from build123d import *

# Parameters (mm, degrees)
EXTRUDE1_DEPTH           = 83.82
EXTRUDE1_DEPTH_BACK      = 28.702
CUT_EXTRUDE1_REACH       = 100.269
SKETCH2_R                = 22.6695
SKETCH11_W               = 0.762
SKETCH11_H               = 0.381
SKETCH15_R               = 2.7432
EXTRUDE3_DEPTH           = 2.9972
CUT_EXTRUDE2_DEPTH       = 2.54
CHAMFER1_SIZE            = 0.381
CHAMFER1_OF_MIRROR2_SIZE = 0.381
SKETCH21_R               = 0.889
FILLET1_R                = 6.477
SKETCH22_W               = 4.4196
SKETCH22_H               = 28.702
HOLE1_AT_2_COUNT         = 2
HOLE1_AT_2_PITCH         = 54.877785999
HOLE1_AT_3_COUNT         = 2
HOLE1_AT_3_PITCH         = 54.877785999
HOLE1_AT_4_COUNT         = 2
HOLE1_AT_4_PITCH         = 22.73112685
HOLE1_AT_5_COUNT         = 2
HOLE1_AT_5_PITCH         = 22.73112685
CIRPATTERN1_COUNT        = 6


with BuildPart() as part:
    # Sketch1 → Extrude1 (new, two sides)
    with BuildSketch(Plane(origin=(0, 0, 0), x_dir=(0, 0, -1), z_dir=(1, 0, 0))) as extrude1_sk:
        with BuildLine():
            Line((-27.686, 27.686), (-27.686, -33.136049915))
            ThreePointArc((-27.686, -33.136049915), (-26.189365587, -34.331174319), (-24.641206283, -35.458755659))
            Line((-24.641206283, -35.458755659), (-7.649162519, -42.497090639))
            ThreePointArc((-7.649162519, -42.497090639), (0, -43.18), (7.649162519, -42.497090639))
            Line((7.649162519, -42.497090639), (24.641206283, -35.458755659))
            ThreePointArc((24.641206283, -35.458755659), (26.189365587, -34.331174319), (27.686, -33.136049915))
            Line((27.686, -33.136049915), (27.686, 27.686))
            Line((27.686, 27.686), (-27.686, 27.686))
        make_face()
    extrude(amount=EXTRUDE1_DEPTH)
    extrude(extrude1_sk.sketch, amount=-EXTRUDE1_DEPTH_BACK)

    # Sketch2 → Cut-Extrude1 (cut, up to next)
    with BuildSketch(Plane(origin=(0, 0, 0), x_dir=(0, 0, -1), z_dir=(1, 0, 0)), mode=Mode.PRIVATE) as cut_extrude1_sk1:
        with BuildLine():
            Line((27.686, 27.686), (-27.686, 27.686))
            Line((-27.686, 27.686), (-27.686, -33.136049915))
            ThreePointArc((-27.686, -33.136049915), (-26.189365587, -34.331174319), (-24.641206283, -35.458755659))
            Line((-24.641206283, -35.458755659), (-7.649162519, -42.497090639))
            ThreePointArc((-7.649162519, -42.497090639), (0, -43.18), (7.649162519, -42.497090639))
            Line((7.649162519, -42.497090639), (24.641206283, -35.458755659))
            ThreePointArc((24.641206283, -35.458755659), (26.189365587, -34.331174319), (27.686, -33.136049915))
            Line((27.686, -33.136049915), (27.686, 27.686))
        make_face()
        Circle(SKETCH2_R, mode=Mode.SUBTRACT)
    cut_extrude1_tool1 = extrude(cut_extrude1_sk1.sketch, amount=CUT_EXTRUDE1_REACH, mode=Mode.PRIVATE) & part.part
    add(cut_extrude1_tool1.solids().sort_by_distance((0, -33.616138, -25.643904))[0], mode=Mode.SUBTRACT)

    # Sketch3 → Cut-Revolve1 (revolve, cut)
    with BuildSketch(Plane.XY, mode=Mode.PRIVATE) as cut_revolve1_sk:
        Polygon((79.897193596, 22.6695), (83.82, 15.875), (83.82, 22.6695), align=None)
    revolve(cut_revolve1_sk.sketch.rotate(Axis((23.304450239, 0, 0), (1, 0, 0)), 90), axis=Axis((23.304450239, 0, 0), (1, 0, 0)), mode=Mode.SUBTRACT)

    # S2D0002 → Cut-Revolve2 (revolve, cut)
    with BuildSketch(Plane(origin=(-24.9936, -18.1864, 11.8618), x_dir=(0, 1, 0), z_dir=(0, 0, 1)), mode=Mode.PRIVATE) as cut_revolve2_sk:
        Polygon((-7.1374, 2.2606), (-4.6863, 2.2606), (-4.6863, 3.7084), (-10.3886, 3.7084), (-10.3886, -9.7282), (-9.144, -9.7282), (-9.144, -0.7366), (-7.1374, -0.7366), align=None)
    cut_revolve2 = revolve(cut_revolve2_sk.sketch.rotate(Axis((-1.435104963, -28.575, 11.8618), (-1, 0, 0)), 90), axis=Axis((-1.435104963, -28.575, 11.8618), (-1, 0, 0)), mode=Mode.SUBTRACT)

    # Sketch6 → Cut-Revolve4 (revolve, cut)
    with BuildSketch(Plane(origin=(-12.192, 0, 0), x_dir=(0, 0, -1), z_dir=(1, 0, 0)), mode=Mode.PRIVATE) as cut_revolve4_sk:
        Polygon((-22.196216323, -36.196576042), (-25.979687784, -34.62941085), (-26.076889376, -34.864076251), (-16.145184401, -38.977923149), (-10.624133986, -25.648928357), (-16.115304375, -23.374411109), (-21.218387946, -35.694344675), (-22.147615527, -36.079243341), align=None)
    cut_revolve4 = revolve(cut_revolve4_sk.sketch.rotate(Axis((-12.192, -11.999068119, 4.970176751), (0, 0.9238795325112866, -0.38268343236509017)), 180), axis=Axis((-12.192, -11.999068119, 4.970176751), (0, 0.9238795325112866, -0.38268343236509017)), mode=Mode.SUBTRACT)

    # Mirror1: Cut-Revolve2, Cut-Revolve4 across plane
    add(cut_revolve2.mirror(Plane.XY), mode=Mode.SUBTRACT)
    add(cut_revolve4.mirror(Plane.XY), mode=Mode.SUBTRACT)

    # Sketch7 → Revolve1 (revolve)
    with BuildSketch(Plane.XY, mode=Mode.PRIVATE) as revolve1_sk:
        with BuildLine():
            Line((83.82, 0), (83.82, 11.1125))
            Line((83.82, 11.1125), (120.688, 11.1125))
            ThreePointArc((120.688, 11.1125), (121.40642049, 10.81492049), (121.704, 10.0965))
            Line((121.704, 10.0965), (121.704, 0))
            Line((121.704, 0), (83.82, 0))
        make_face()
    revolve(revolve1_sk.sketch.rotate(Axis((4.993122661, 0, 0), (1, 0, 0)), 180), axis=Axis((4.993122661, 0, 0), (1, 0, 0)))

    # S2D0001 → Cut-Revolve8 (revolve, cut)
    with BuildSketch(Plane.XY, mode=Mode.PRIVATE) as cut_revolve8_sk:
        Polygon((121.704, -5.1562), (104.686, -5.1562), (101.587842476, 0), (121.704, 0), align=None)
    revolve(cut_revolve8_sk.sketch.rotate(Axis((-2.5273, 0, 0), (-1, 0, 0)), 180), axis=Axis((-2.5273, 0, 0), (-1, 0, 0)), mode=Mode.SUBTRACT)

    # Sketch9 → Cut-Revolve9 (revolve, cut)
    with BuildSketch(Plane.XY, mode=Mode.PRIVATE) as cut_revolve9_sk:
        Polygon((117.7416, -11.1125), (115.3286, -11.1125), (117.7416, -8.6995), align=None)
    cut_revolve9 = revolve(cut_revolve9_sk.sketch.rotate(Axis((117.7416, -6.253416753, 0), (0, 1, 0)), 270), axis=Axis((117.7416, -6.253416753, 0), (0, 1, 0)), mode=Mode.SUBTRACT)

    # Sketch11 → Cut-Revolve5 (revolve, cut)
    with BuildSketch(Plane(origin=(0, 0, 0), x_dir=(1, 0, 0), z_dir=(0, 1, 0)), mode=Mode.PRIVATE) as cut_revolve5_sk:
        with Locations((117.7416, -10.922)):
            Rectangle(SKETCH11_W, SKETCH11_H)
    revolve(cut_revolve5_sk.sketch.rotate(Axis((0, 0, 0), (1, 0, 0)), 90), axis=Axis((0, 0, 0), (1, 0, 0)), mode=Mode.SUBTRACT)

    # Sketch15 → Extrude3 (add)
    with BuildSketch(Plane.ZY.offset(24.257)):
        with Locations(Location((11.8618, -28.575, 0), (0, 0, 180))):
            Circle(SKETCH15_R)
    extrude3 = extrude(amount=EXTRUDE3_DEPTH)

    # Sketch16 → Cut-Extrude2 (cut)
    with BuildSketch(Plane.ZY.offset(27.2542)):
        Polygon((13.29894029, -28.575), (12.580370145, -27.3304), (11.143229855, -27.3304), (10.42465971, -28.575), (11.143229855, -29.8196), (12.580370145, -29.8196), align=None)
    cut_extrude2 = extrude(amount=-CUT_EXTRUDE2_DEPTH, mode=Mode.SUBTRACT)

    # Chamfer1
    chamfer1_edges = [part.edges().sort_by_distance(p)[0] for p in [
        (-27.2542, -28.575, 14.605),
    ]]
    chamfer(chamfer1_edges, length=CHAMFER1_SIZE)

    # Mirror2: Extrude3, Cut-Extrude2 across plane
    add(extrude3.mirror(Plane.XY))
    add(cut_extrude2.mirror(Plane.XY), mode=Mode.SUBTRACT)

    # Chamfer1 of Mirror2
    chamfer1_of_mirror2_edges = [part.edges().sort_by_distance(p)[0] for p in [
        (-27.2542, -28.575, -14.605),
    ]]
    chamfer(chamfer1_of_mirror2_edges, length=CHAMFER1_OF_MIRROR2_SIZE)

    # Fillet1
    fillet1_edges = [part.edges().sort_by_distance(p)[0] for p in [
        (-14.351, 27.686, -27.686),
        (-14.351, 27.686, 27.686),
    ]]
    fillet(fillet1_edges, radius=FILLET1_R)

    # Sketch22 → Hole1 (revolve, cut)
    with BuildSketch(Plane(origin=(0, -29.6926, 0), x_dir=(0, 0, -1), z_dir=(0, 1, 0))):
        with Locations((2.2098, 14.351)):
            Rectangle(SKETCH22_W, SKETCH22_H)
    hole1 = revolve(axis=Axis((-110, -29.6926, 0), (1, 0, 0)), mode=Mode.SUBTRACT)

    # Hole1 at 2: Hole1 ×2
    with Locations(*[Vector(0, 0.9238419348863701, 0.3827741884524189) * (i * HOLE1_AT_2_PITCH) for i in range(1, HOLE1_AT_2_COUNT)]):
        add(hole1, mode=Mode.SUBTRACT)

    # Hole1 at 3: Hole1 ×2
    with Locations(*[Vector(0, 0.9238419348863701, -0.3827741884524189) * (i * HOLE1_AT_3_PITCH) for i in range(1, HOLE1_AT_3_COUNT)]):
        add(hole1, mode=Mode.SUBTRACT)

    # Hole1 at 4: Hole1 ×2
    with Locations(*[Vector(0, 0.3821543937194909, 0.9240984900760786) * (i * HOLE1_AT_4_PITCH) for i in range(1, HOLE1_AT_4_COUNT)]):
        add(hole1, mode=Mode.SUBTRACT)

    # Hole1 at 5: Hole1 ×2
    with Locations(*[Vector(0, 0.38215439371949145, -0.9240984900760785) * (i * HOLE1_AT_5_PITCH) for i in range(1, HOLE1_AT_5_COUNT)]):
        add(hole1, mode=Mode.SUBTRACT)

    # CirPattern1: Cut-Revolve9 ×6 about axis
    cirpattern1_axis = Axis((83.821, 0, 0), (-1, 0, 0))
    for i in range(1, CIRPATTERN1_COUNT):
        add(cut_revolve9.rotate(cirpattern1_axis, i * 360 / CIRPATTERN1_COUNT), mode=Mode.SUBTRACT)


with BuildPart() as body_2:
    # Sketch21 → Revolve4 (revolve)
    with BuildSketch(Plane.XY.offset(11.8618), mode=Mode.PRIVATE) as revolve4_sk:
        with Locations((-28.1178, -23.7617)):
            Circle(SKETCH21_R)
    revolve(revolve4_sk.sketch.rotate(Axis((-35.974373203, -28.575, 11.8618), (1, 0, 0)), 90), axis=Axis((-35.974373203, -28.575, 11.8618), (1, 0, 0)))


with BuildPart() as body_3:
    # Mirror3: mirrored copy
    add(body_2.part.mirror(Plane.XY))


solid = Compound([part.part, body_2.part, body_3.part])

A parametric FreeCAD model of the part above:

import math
import FreeCAD as App
import Part
import Sketcher

V = App.Vector
Q = App.Units.Quantity


def edges_at(feature, points):
    """Names of the edges that pass closest to the given points."""
    edges = feature.Shape.Edges
    near = lambda p: min(range(len(edges)), key=lambda i: edges[i].distToShape(Part.Vertex(*p))[0])
    return sorted({f"Edge{near(p) + 1}" for p in points})

doc = App.newDocument("Part")
params = doc.addObject("Spreadsheet::Sheet", "Params")
for row, (alias, value) in enumerate([
    ("sketch1_radius", "1.7 in"),
    ("sketch1_height", "2.18 in"),
    ("pad1_length", "3.3 in"),
    ("pad1_length2", "1.13 in"),
    ("sketch2_radius", "1.7 in"),
    ("sketch2_diameter", "1.785 in"),
    ("sketch2_height", "2.18 in"),
    ("groove_angle", "360 deg"),
    ("sketch4_width", "0.057 in"),
    ("sketch4_width2", "0.529 in"),
    ("sketch4_width3", "0.354 in"),
    ("sketch4_height", "0.049 in"),
    ("sketch4_height2", "0.079 in"),
    ("groove2_angle", "360 deg"),
    ("sketch5_length", "0.01 in"),
    ("sketch5_length2", "0.568 in"),
    ("sketch5_length3", "0.234 in"),
    ("sketch5_length4", "0.525 in"),
    ("sketch5_length5", "0.005 in"),
    ("groove3_angle", "360 deg"),
    ("sketch6_radius", "0.04 in"),
    ("sketch6_height", "0.4375 in"),
    ("revolution_angle", "360 deg"),
    ("sketch7_width", "0.67 in"),
    ("sketch7_height", "0.203 in"),
    ("groove4_angle", "360 deg"),
    ("sketch8_width", "0.095 in"),
    ("groove5_angle", "360 deg"),
    ("sketch9_width", "0.03 in"),
    ("sketch9_height", "0.015 in"),
    ("groove6_angle", "360 deg"),
    ("sketch10_diameter", "0.216 in"),
    ("pad2_length", "0.118 in"),
    ("pocket2_length", "0.1 in"),
    ("chamfer_size", "0.015 in"),
    ("chamfer2_size", "0.015 in"),
    ("fillet_radius", "0.255 in"),
    ("sketch12_width", "1.13 in"),
    ("sketch12_height", "0.174 in"),
    ("groove7_angle", "360 deg"),
    ("linearpattern_pitch", "54.877786 mm"),
    ("linearpattern2_pitch", "54.877786 mm"),
    ("linearpattern3_pitch", "22.731127 mm"),
    ("linearpattern4_pitch", "22.731127 mm"),
    ("sketch13_diameter", "0.07 in"),
    ("revolution2_angle", "360 deg"),
], start=1):
    params.set(f"A{row}", alias)
    params.set(f"B{row}", "=" + value)
    params.setAlias(f"B{row}", alias)

body = doc.addObject("PartDesign::Body", "Body")

sketch1 = body.newObject("Sketcher::SketchObject", "Sketch")
sketch1.AttachmentSupport = (doc.getObject("YZ_Plane"), [""])
sketch1.MapMode = "FlatFace"
sketch1.addGeometry([
    Part.LineSegment(V(27.7, 27.7, 0), V(-33.1, 27.7, 0)),
    Part.ArcOfCircle(Part.Circle(V(0, 0, 0), V(0, 0, 1), 43.2), math.radians(140.12), math.radians(145.2)),
    Part.LineSegment(V(-35.5, 24.6, 0), V(-42.5, 7.6, 0)),
    Part.ArcOfCircle(Part.Circle(V(0, 0, 0), V(0, 0, 1), 43.2), math.radians(170), math.radians(190)),
    Part.LineSegment(V(-42.5, -7.6, 0), V(-35.5, -24.6, 0)),
    Part.ArcOfCircle(Part.Circle(V(0, 0, 0), V(0, 0, 1), 43.2), math.radians(-145.2), math.radians(-140.12)),
    Part.LineSegment(V(-33.1, -27.7, 0), V(27.7, -27.7, 0)),
    Part.LineSegment(V(27.7, -27.7, 0), V(27.7, 27.7, 0)),
], False)
sketch1.addConstraint([
    Sketcher.Constraint("Coincident", 0, 2, 1, 1),
    Sketcher.Constraint("Coincident", 1, 2, 2, 1),
    Sketcher.Constraint("Coincident", 2, 2, 3, 1),
    Sketcher.Constraint("Coincident", 3, 2, 4, 1),
    Sketcher.Constraint("Coincident", 4, 2, 5, 1),
    Sketcher.Constraint("Coincident", 5, 2, 6, 1),
    Sketcher.Constraint("Coincident", 6, 2, 7, 1),
    Sketcher.Constraint("Coincident", 7, 2, 0, 1),
    Sketcher.Constraint("Horizontal", 0),
    Sketcher.Constraint("Horizontal", 6),
    Sketcher.Constraint("Vertical", 7),
    Sketcher.Constraint("Coincident", 1, 3, -1, 1),
    Sketcher.Constraint("Coincident", 3, 3, -1, 1),
    Sketcher.Constraint("Coincident", 5, 3, -1, 1),
    Sketcher.Constraint("Equal", 1, 3),
    Sketcher.Constraint("Equal", 3, 5),
    Sketcher.Constraint("Vertical", 2, 2, 3, 2),
    Sketcher.Constraint("Vertical", 1, 2, 4, 2),
    Sketcher.Constraint("Vertical", 0, 2, 5, 2),
    Sketcher.Constraint("Radius", 1, Q("1.7 in")),
    Sketcher.Constraint("DistanceY", 7, 1, 7, 2, Q("2.18 in")),
    Sketcher.Constraint("Angle", 2, Q("-112.5 deg")),
    Sketcher.Constraint("DistanceX", -1, 1, 6, 2, Q("1.09 in")),
    Sketcher.Constraint("DistanceX", 2, 2, 1, 2, Q("0.2770998 in")),
])
sketch1.setExpression("Constraints[19]", "Params.sketch1_radius")
sketch1.setExpression("Constraints[20]", "Params.sketch1_height")
pad1 = body.newObject("PartDesign::Pad", "Pad")
pad1.Profile = sketch1
pad1.Type = "TwoLengths"
pad1.setExpression("Length", "Params.pad1_length")
pad1.setExpression("Length2", "Params.pad1_length2")

sketch2 = body.newObject("Sketcher::SketchObject", "Sketch001")
sketch2.AttachmentSupport = (doc.getObject("YZ_Plane"), [""])
sketch2.MapMode = "FlatFace"
sketch2.addGeometry([
    Part.LineSegment(V(27.7, -27.7, 0), V(27.7, 27.7, 0)),
    Part.LineSegment(V(27.7, 27.7, 0), V(-33.1, 27.7, 0)),
    Part.ArcOfCircle(Part.Circle(V(0, 0, 0), V(0, 0, 1), 43.2), math.radians(140.12), math.radians(145.2)),
    Part.LineSegment(V(-35.5, 24.6, 0), V(-42.5, 7.6, 0)),
    Part.ArcOfCircle(Part.Circle(V(0, 0, 0), V(0, 0, 1), 43.2), math.radians(170), math.radians(190)),
    Part.LineSegment(V(-42.5, -7.6, 0), V(-35.5, -24.6, 0)),
    Part.ArcOfCircle(Part.Circle(V(0, 0, 0), V(0, 0, 1), 43.2), math.radians(-145.2), math.radians(-140.12)),
    Part.LineSegment(V(-33.1, -27.7, 0), V(27.7, -27.7, 0)),
    Part.Circle(V(0, 0, 0), V(0, 0, 1), 22.7),
], False)
sketch2.addConstraint([
    Sketcher.Constraint("Coincident", 0, 2, 1, 1),
    Sketcher.Constraint("Coincident", 1, 2, 2, 1),
    Sketcher.Constraint("Coincident", 2, 2, 3, 1),
    Sketcher.Constraint("Coincident", 3, 2, 4, 1),
    Sketcher.Constraint("Coincident", 4, 2, 5, 1),
    Sketcher.Constraint("Coincident", 5, 2, 6, 1),
    Sketcher.Constraint("Coincident", 6, 2, 7, 1),
    Sketcher.Constraint("Coincident", 7, 2, 0, 1),
    Sketcher.Constraint("Vertical", 0),
    Sketcher.Constraint("Horizontal", 1),
    Sketcher.Constraint("Horizontal", 7),
    Sketcher.Constraint("Coincident", 2, 3, -1, 1),
    Sketcher.Constraint("Coincident", 4, 3, -1, 1),
    Sketcher.Constraint("Coincident", 6, 3, -1, 1),
    Sketcher.Constraint("Coincident", 8, 3, -1, 1),
    Sketcher.Constraint("Equal", 2, 4),
    Sketcher.Constraint("Equal", 4, 6),
    Sketcher.Constraint("Vertical", 3, 2, 4, 2),
    Sketcher.Constraint("Vertical", 2, 2, 5, 2),
    Sketcher.Constraint("Vertical", 1, 2, 6, 2),
    Sketcher.Constraint("Radius", 2, Q("1.7 in")),
    Sketcher.Constraint("Diameter", 8, Q("1.785 in")),
    Sketcher.Constraint("DistanceY", 0, 1, 0, 2, Q("2.18 in")),
    Sketcher.Constraint("Angle", 3, Q("-112.5 deg")),
    Sketcher.Constraint("DistanceX", -1, 1, 0, 2, Q("1.09 in")),
    Sketcher.Constraint("DistanceX", 3, 2, 2, 2, Q("0.2770998 in")),
])
sketch2.setExpression("Constraints[20]", "Params.sketch2_radius")
sketch2.setExpression("Constraints[21]", "Params.sketch2_diameter")
sketch2.setExpression("Constraints[22]", "Params.sketch2_height")
pocket1 = body.newObject("PartDesign::Pocket", "Pocket")
pocket1.Profile = sketch2
pocket1.Type = "UpToFirst"
pocket1.Reversed = True

sketch3 = body.newObject("Sketcher::SketchObject", "Sketch002")
sketch3.AttachmentSupport = (doc.getObject("XY_Plane"), [""])
sketch3.MapMode = "FlatFace"
sketch3.addGeometry([
    Part.LineSegment(V(79.9, 22.7, 0), V(83.8, 15.9, 0)),
    Part.LineSegment(V(83.8, 15.9, 0), V(83.8, 22.7, 0)),
    Part.LineSegment(V(83.8, 22.7, 0), V(79.9, 22.7, 0)),
], False)
sketch3.addConstraint([
    Sketcher.Constraint("Coincident", 0, 2, 1, 1),
    Sketcher.Constraint("Coincident", 1, 2, 2, 1),
    Sketcher.Constraint("Coincident", 2, 2, 0, 1),
    Sketcher.Constraint("Vertical", 1),
    Sketcher.Constraint("Horizontal", 2),
    Sketcher.Constraint("Angle", 0, Q("-60 deg")),
    Sketcher.Constraint("DistanceX", -1, 1, 0, 2, Q("3.3 in")),
    Sketcher.Constraint("DistanceY", 1, 1, 1, 2, Q("0.2675 in")),
    Sketcher.Constraint("DistanceY", -1, 1, 0, 2, Q("0.625 in")),
])
groove = body.newObject("PartDesign::Groove", "Groove")
groove.Profile = sketch3
groove.ReferenceAxis = (sketch3, ["H_Axis"])
groove.setExpression("Angle", "Params.groove_angle")

sketch4 = body.newObject("Sketcher::SketchObject", "Sketch003")
sketch4.AttachmentSupport = (doc.getObject("XY_Plane"), [""])
sketch4.MapMode = "FlatFace"
sketch4.AttachmentOffset = App.Placement(V(0, 0, 0.467 * 25.4), App.Rotation())
sketch4.addGeometry([
    Part.LineSegment(V(-27.3, -25.3, 0), V(-27.3, -22.9, 0)),
    Part.LineSegment(V(-27.3, -22.9, 0), V(-28.7, -22.9, 0)),
    Part.LineSegment(V(-28.7, -22.9, 0), V(-28.7, -28.6, 0)),
    Part.LineSegment(V(-28.7, -28.6, 0), V(-15.3, -28.6, 0)),
    Part.LineSegment(V(-15.3, -28.6, 0), V(-15.3, -27.3, 0)),
    Part.LineSegment(V(-15.3, -27.3, 0), V(-24.3, -27.3, 0)),
    Part.LineSegment(V(-24.3, -27.3, 0), V(-24.3, -25.3, 0)),
    Part.LineSegment(V(-24.3, -25.3, 0), V(-27.3, -25.3, 0)),
], False)
sketch4.addGeometry(Part.LineSegment(V(-15.3, -28.6, 0), V(-28.7, -28.6, 0)), True)
sketch4.addConstraint([
    Sketcher.Constraint("Coincident", 0, 2, 1, 1),
    Sketcher.Constraint("Coincident", 1, 2, 2, 1),
    Sketcher.Constraint("Coincident", 2, 2, 3, 1),
    Sketcher.Constraint("Coincident", 3, 2, 4, 1),
    Sketcher.Constraint("Coincident", 4, 2, 5, 1),
    Sketcher.Constraint("Coincident", 5, 2, 6, 1),
    Sketcher.Constraint("Coincident", 6, 2, 7, 1),
    Sketcher.Constraint("Coincident", 7, 2, 0, 1),
    Sketcher.Constraint("Vertical", 0),
    Sketcher.Constraint("Horizontal", 1),
    Sketcher.Constraint("Vertical", 2),
    Sketcher.Constraint("Horizontal", 3),
    Sketcher.Constraint("Vertical", 4),
    Sketcher.Constraint("Horizontal", 5),
    Sketcher.Constraint("Vertical", 6),
    Sketcher.Constraint("Horizontal", 7),
    Sketcher.Constraint("Horizontal", 8),
    Sketcher.Constraint("Coincident", 8, 1, 3, 2),
    Sketcher.Constraint("Vertical", 1, 2, 8, 2),
    Sketcher.Constraint("DistanceX", 1, 2, 1, 1, Q("0.057 in")),
    Sketcher.Constraint("DistanceX", 3, 1, 3, 2, Q("0.529 in")),
    Sketcher.Constraint("DistanceX", 5, 2, 5, 1, Q("0.354 in")),
    Sketcher.Constraint("DistanceY", 4, 1, 4, 2, Q("0.049 in")),
    Sketcher.Constraint("DistanceY", 6, 1, 6, 2, Q("0.079 in")),
    Sketcher.Constraint("DistanceX", 1, 2, -1, 1, Q("1.13 in")),
    Sketcher.Constraint("DistanceY", 0, 1, 0, 2, Q("0.0965 in")),
    Sketcher.Constraint("DistanceY", 2, 2, -1, 1, Q("1.125 in")),
])
sketch4.setExpression("Constraints[19]", "Params.sketch4_width")
sketch4.setExpression("Constraints[20]", "Params.sketch4_width2")
sketch4.setExpression("Constraints[21]", "Params.sketch4_width3")
sketch4.setExpression("Constraints[22]", "Params.sketch4_height")
sketch4.setExpression("Constraints[23]", "Params.sketch4_height2")
groove2 = body.newObject("PartDesign::Groove", "Groove001")
groove2.Profile = sketch4
groove2.ReferenceAxis = (sketch4, ["Axis0"])
groove2.setExpression("Angle", "Params.groove2_angle")

sketch5 = body.newObject("Sketcher::SketchObject", "Sketch004")
sketch5.AttachmentSupport = (doc.getObject("YZ_Plane"), [""])
sketch5.MapMode = "FlatFace"
sketch5.AttachmentOffset = App.Placement(V(0, 0, -0.48 * 25.4), App.Rotation())
sketch5.addGeometry([
    Part.LineSegment(V(-36.2, 22.2, 0), V(-34.63, 25.98, 0)),
    Part.LineSegment(V(-34.63, 25.98, 0), V(-34.86, 26.08, 0)),
    Part.LineSegment(V(-34.86, 26.08, 0), V(-38.98, 16.15, 0)),
    Part.LineSegment(V(-38.98, 16.15, 0), V(-25.65, 10.62, 0)),
    Part.LineSegment(V(-25.65, 10.62, 0), V(-23.37, 16.12, 0)),
    Part.LineSegment(V(-23.37, 16.12, 0), V(-35.69, 21.22, 0)),
    Part.LineSegment(V(-35.69, 21.22, 0), V(-36.08, 22.15, 0)),
    Part.LineSegment(V(-36.08, 22.15, 0), V(-36.2, 22.2, 0)),
], False)
sketch5.addGeometry(Part.LineSegment(V(-38.98, 16.15, 0), V(-25.65, 10.62, 0)), True)
sketch5.addConstraint([
    Sketcher.Constraint("Coincident", 0, 2, 1, 1),
    Sketcher.Constraint("Coincident", 1, 2, 2, 1),
    Sketcher.Constraint("Coincident", 2, 2, 3, 1),
    Sketcher.Constraint("Coincident", 3, 2, 4, 1),
    Sketcher.Constraint("Coincident", 4, 2, 5, 1),
    Sketcher.Constraint("Coincident", 5, 2, 6, 1),
    Sketcher.Constraint("Coincident", 6, 2, 7, 1),
    Sketcher.Constraint("Coincident", 7, 2, 0, 1),
    Sketcher.Constraint("Coincident", 8, 1, 2, 2),
    Sketcher.Constraint("Coincident", 8, 2, 3, 2),
    Sketcher.Constraint("Perpendicular", 0, 1),
    Sketcher.Constraint("Perpendicular", 1, 2),
    Sketcher.Constraint("Perpendicular", 2, 3),
    Sketcher.Constraint("Perpendicular", 3, 4),
    Sketcher.Constraint("Perpendicular", 4, 5),
    Sketcher.Constraint("Parallel", 5, 7),
    Sketcher.Constraint("Angle", 0, Q("67.5 deg")),
    Sketcher.Constraint("Angle", 6, Q("112.5 deg")),
    Sketcher.Constraint("Distance", 1, Q("0.01 in")),
    Sketcher.Constraint("Distance", 3, Q("0.568 in")),
    Sketcher.Constraint("Distance", 4, Q("0.234 in")),
    Sketcher.Constraint("Distance", 5, Q("0.525 in")),
    Sketcher.Constraint("Distance", 7, Q("0.005 in")),
    Sketcher.Constraint("Distance", 0, 4.0952),
    Sketcher.Constraint("DistanceX", 0, 2, -1, 1, 34.629411),
    Sketcher.Constraint("DistanceY", -1, 1, 1, 2, 26.076889),
])
sketch5.setExpression("Constraints[18]", "Params.sketch5_length")
sketch5.setExpression("Constraints[19]", "Params.sketch5_length2")
sketch5.setExpression("Constraints[20]", "Params.sketch5_length3")
sketch5.setExpression("Constraints[21]", "Params.sketch5_length4")
sketch5.setExpression("Constraints[22]", "Params.sketch5_length5")
groove3 = body.newObject("PartDesign::Groove", "Groove002")
groove3.Profile = sketch5
groove3.ReferenceAxis = (sketch5, ["Axis0"])
groove3.setExpression("Angle", "Params.groove3_angle")
doc.recompute()

mirrored = body.newObject("PartDesign::Mirrored", "Mirrored")
mirrored.Originals = [groove2, groove3]
mirrored.MirrorPlane = (doc.getObject("XY_Plane"), [""])
body.Tip = mirrored

sketch6 = body.newObject("Sketcher::SketchObject", "Sketch005")
sketch6.AttachmentSupport = (doc.getObject("XY_Plane"), [""])
sketch6.MapMode = "FlatFace"
sketch6.addGeometry([
    Part.LineSegment(V(83.8, 11.1, 0), V(83.8, 0, 0)),
    Part.LineSegment(V(83.8, 0, 0), V(121.7, 0, 0)),
    Part.LineSegment(V(121.7, 0, 0), V(121.7, 10.1, 0)),
    Part.ArcOfCircle(Part.Circle(V(120.7, 10.1, 0), V(0, 0, 1), 1), math.radians(0), math.radians(90)),
    Part.LineSegment(V(120.7, 11.1, 0), V(83.8, 11.1, 0)),
], False)
sketch6.addConstraint([
    Sketcher.Constraint("Coincident", 0, 2, 1, 1),
    Sketcher.Constraint("Coincident", 1, 2, 2, 1),
    Sketcher.Constraint("Tangent", 2, 2, 3, 1),
    Sketcher.Constraint("Tangent", 3, 2, 4, 1),
    Sketcher.Constraint("Coincident", 4, 2, 0, 1),
    Sketcher.Constraint("Vertical", 0),
    Sketcher.Constraint("Horizontal", 1),
    Sketcher.Constraint("Vertical", 2),
    Sketcher.Constraint("Horizontal", 4),
    Sketcher.Constraint("PointOnObject", 0, 2, -1),
    Sketcher.Constraint("Radius", 3, Q("0.04 in")),
    Sketcher.Constraint("DistanceX", -1, 1, 0, 2, Q("3.3 in")),
    Sketcher.Constraint("DistanceY", 0, 2, 0, 1, Q("0.4375 in")),
    Sketcher.Constraint("DistanceX", 1, 1, 1, 2, 37.884),
])
sketch6.setExpression("Constraints[10]", "Params.sketch6_radius")
sketch6.setExpression("Constraints[12]", "Params.sketch6_height")
revolution = body.newObject("PartDesign::Revolution", "Revolution")
revolution.Profile = sketch6
revolution.ReferenceAxis = (sketch6, ["H_Axis"])
revolution.setExpression("Angle", "Params.revolution_angle")

sketch7 = body.newObject("Sketcher::SketchObject", "Sketch006")
sketch7.AttachmentSupport = (doc.getObject("XY_Plane"), [""])
sketch7.MapMode = "FlatFace"
sketch7.addGeometry([
    Part.LineSegment(V(105, -5, 0), V(122, -5, 0)),
    Part.LineSegment(V(122, -5, 0), V(122, 0, 0)),
    Part.LineSegment(V(122, 0, 0), V(102, 0, 0)),
    Part.LineSegment(V(102, 0, 0), V(105, -5, 0)),
], False)
sketch7.addConstraint([
    Sketcher.Constraint("Coincident", 0, 2, 1, 1),
    Sketcher.Constraint("Coincident", 1, 2, 2, 1),
    Sketcher.Constraint("Coincident", 2, 2, 3, 1),
    Sketcher.Constraint("Coincident", 3, 2, 0, 1),
    Sketcher.Constraint("Horizontal", 0),
    Sketcher.Constraint("Vertical", 1),
    Sketcher.Constraint("Horizontal", 2),
    Sketcher.Constraint("PointOnObject", 1, 2, -1),
    Sketcher.Constraint("Angle", 3, Q("-59 deg")),
    Sketcher.Constraint("DistanceX", 0, 1, 0, 2, Q("0.67 in")),
    Sketcher.Constraint("DistanceY", 1, 1, 1, 2, Q("0.203 in")),
    Sketcher.Constraint("DistanceX", -1, 1, 0, 2, 121.704),
])
sketch7.setExpression("Constraints[9]", "Params.sketch7_width")
sketch7.setExpression("Constraints[10]", "Params.sketch7_height")
groove4 = body.newObject("PartDesign::Groove", "Groove003")
groove4.Profile = sketch7
groove4.ReferenceAxis = (sketch7, ["H_Axis"])
groove4.setExpression("Angle", "Params.groove4_angle")

sketch8 = body.newObject("Sketcher::SketchObject", "Sketch007")
sketch8.AttachmentSupport = (doc.getObject("XY_Plane"), [""])
sketch8.MapMode = "FlatFace"
sketch8.addGeometry([
    Part.LineSegment(V(115.3, -11.1, 0), V(117.7, -11.1, 0)),
    Part.LineSegment(V(117.7, -11.1, 0), V(117.7, -8.7, 0)),
    Part.LineSegment(V(117.7, -8.7, 0), V(115.3, -11.1, 0)),
], False)
sketch8.addGeometry(Part.LineSegment(V(117.7, -11.1, 0), V(117.7, -8.7, 0)), True)
sketch8.addConstraint([
    Sketcher.Constraint("Coincident", 0, 2, 1, 1),
    Sketcher.Constraint("Coincident", 1, 2, 2, 1),
    Sketcher.Constraint("Coincident", 2, 2, 0, 1),
    Sketcher.Constraint("Horizontal", 0),
    Sketcher.Constraint("Vertical", 1),
    Sketcher.Constraint("Vertical", 3),
    Sketcher.Constraint("Coincident", 3, 1, 0, 2),
    Sketcher.Constraint("Equal", 0, 1),
    Sketcher.Constraint("Equal", 1, 3),
    Sketcher.Constraint("DistanceX", 0, 1, 0, 2, Q("0.095 in")),
    Sketcher.Constraint("DistanceY", 0, 2, -1, 1, Q("0.4375 in")),
    Sketcher.Constraint("DistanceX", -1, 1, 0, 2, 117.7416),
])
sketch8.setExpression("Constraints[9]", "Params.sketch8_width")
groove5 = body.newObject("PartDesign::Groove", "Groove004")
groove5.Profile = sketch8
groove5.ReferenceAxis = (sketch8, ["Axis0"])
groove5.setExpression("Angle", "Params.groove5_angle")

sketch9 = body.newObject("Sketcher::SketchObject", "Sketch008")
sketch9.AttachmentSupport = (doc.getObject("XZ_Plane"), [""])
sketch9.MapMode = "FlatFace"
sketch9.addGeometry([
    Part.LineSegment(V(117.36, 10.73, 0), V(117.36, 11.11, 0)),
    Part.LineSegment(V(117.36, 11.11, 0), V(118.12, 11.11, 0)),
    Part.LineSegment(V(118.12, 11.11, 0), V(118.12, 10.73, 0)),
    Part.LineSegment(V(118.12, 10.73, 0), V(117.36, 10.73, 0)),
], False)
sketch9.addConstraint([
    Sketcher.Constraint("Coincident", 0, 2, 1, 1),
    Sketcher.Constraint("Coincident", 1, 2, 2, 1),
    Sketcher.Constraint("Coincident", 2, 2, 3, 1),
    Sketcher.Constraint("Coincident", 3, 2, 0, 1),
    Sketcher.Constraint("Vertical", 0),
    Sketcher.Constraint("Horizontal", 1),
    Sketcher.Constraint("Vertical", 2),
    Sketcher.Constraint("Horizontal", 3),
    Sketcher.Constraint("DistanceX", 1, 1, 1, 2, Q("0.03 in")),
    Sketcher.Constraint("DistanceY", 0, 1, 0, 2, Q("0.015 in")),
    Sketcher.Constraint("DistanceY", -1, 1, 0, 2, Q("0.4375 in")),
    Sketcher.Constraint("DistanceX", -1, 1, 0, 2, 117.3606),
])
sketch9.setExpression("Constraints[8]", "Params.sketch9_width")
sketch9.setExpression("Constraints[9]", "Params.sketch9_height")
groove6 = body.newObject("PartDesign::Groove", "Groove005")
groove6.Profile = sketch9
groove6.ReferenceAxis = (sketch9, ["H_Axis"])
groove6.setExpression("Angle", "Params.groove6_angle")

sketch10 = body.newObject("Sketcher::SketchObject", "Sketch009")
sketch10.AttachmentSupport = (doc.getObject("YZ_Plane"), [""])
sketch10.MapMode = "FlatFace"
sketch10.AttachmentOffset = App.Placement(V(0, 0, -0.955 * 25.4), App.Rotation())
sketch10.addGeometry(Part.Circle(V(-28.6, 11.9, 0), V(0, 0, 1), 2.7), False)
sketch10.addConstraint([
    Sketcher.Constraint("Diameter", 0, Q("0.216 in")),
    Sketcher.Constraint("DistanceX", 0, 3, -1, 1, Q("1.125 in")),
    Sketcher.Constraint("DistanceY", -1, 1, 0, 3, Q("0.467 in")),
])
sketch10.setExpression("Constraints[0]", "Params.sketch10_diameter")
pad2 = body.newObject("PartDesign::Pad", "Pad001")
pad2.Profile = sketch10
pad2.setExpression("Length", "Params.pad2_length")
pad2.Reversed = True

sketch11 = body.newObject("Sketcher::SketchObject", "Sketch010")
sketch11.AttachmentSupport = (doc.getObject("YZ_Plane"), [""])
sketch11.MapMode = "FlatFace"
sketch11.AttachmentOffset = App.Placement(V(0, 0, -1.073 * 25.4), App.Rotation())
sketch11.addGeometry([
    Part.LineSegment(V(-28.6, 13.3, 0), V(-27.3, 12.6, 0)),
    Part.LineSegment(V(-27.3, 12.6, 0), V(-27.3, 11.1, 0)),
    Part.LineSegment(V(-27.3, 11.1, 0), V(-28.6, 10.4, 0)),
    Part.LineSegment(V(-28.6, 10.4, 0), V(-29.8, 11.1, 0)),
    Part.LineSegment(V(-29.8, 11.1, 0), V(-29.8, 12.6, 0)),
    Part.LineSegment(V(-29.8, 12.6, 0), V(-28.6, 13.3, 0)),
], False)
sketch11.addConstraint([
    Sketcher.Constraint("Coincident", 0, 2, 1, 1),
    Sketcher.Constraint("Coincident", 1, 2, 2, 1),
    Sketcher.Constraint("Coincident", 2, 2, 3, 1),
    Sketcher.Constraint("Coincident", 3, 2, 4, 1),
    Sketcher.Constraint("Coincident", 4, 2, 5, 1),
    Sketcher.Constraint("Coincident", 5, 2, 0, 1),
    Sketcher.Constraint("Vertical", 1),
    Sketcher.Constraint("Vertical", 4),
    Sketcher.Constraint("Parallel", 0, 3),
    Sketcher.Constraint("Parallel", 2, 5),
    Sketcher.Constraint("Horizontal", 1, 2, 3, 2),
    Sketcher.Constraint("Horizontal", 0, 2, 4, 2),
    Sketcher.Constraint("Vertical", 2, 2, 5, 2),
    Sketcher.Constraint("Angle", 0, Q("-30 deg")),
    Sketcher.Constraint("DistanceX", 0, 2, -1, 1, Q("1.076 in")),
    Sketcher.Constraint("DistanceX", 2, 2, -1, 1, Q("1.125 in")),
    Sketcher.Constraint("DistanceY", 1, 2, 1, 1, 1.43714),
    Sketcher.Constraint("DistanceY", -1, 1, 0, 2, 12.58037),
])
pocket2 = body.newObject("PartDesign::Pocket", "Pocket001")
pocket2.Profile = sketch11
pocket2.setExpression("Length", "Params.pocket2_length")
pocket2.Reversed = True
doc.recompute()

chamfer = body.newObject("PartDesign::Chamfer", "Chamfer")
chamfer.Base = (pocket2, edges_at(pocket2, [(-27.254, -28.575, 14.605)]))
chamfer.setExpression("Size", "Params.chamfer_size")
doc.recompute()

mirrored2 = body.newObject("PartDesign::Mirrored", "Mirrored001")
mirrored2.Originals = [pad2, pocket2]
mirrored2.MirrorPlane = (doc.getObject("XY_Plane"), [""])
body.Tip = mirrored2
doc.recompute()

chamfer2 = body.newObject("PartDesign::Chamfer", "Chamfer001")
chamfer2.Base = (mirrored2, edges_at(mirrored2, [(-27.254, -28.575, -14.605)]))
chamfer2.setExpression("Size", "Params.chamfer2_size")
doc.recompute()

fillet = body.newObject("PartDesign::Fillet", "Fillet")
fillet.Base = (chamfer2, edges_at(chamfer2, [(-14.351, 27.686, -27.686), (-14.351, 27.686, 27.686)]))
fillet.setExpression("Radius", "Params.fillet_radius")

sketch12 = body.newObject("Sketcher::SketchObject", "Sketch011")
sketch12.AttachmentSupport = (doc.getObject("XZ_Plane"), [""])
sketch12.MapMode = "FlatFace"
sketch12.AttachmentOffset = App.Placement(V(0, 0, 1.169 * 25.4), App.Rotation())
sketch12.addGeometry([
    Part.LineSegment(V(-28.7, 0, 0), V(0, 0, 0)),
    Part.LineSegment(V(0, 0, 0), V(0, -4.4, 0)),
    Part.LineSegment(V(0, -4.4, 0), V(-28.7, -4.4, 0)),
    Part.LineSegment(V(-28.7, -4.4, 0), V(-28.7, 0, 0)),
], False)
sketch12.addConstraint([
    Sketcher.Constraint("Coincident", 0, 2, 1, 1),
    Sketcher.Constraint("Coincident", 1, 2, 2, 1),
    Sketcher.Constraint("Coincident", 2, 2, 3, 1),
    Sketcher.Constraint("Coincident", 3, 2, 0, 1),
    Sketcher.Constraint("Horizontal", 0),
    Sketcher.Constraint("Vertical", 1),
    Sketcher.Constraint("Horizontal", 2),
    Sketcher.Constraint("Vertical", 3),
    Sketcher.Constraint("Coincident", 0, 2, -1, 1),
    Sketcher.Constraint("DistanceX", 0, 1, 0, 2, Q("1.13 in")),
    Sketcher.Constraint("DistanceY", 1, 2, 1, 1, Q("0.174 in")),
])
sketch12.setExpression("Constraints[9]", "Params.sketch12_width")
sketch12.setExpression("Constraints[10]", "Params.sketch12_height")
groove7 = body.newObject("PartDesign::Groove", "Groove006")
groove7.Profile = sketch12
groove7.ReferenceAxis = (sketch12, ["H_Axis"])
groove7.setExpression("Angle", "Params.groove7_angle")
doc.recompute()

datumline = body.newObject("PartDesign::Line", "DatumLine")
datumline.Placement = App.Placement(V(0, 0, 0), App.Rotation(V(0, 0, 1), V(0, 0.923841935, 0.382774188)))
linearpattern = body.newObject("PartDesign::LinearPattern", "LinearPattern")
linearpattern.Originals = [groove7]
linearpattern.Direction = (datumline, [""])
linearpattern.Mode = "offset"
linearpattern.setExpression("Offset", "Params.linearpattern_pitch")
linearpattern.Occurrences = 2
body.Tip = linearpattern
doc.recompute()

datumline2 = body.newObject("PartDesign::Line", "DatumLine001")
datumline2.Placement = App.Placement(V(0, 0, 0), App.Rotation(V(0, 0, 1), V(0, 0.923841935, -0.382774188)))
linearpattern2 = body.newObject("PartDesign::LinearPattern", "LinearPattern001")
linearpattern2.Originals = [groove7]
linearpattern2.Direction = (datumline2, [""])
linearpattern2.Mode = "offset"
linearpattern2.setExpression("Offset", "Params.linearpattern2_pitch")
linearpattern2.Occurrences = 2
body.Tip = linearpattern2
doc.recompute()

datumline3 = body.newObject("PartDesign::Line", "DatumLine002")
datumline3.Placement = App.Placement(V(0, 0, 0), App.Rotation(V(0, 0, 1), V(0, 0.382154394, 0.92409849)))
linearpattern3 = body.newObject("PartDesign::LinearPattern", "LinearPattern002")
linearpattern3.Originals = [groove7]
linearpattern3.Direction = (datumline3, [""])
linearpattern3.Mode = "offset"
linearpattern3.setExpression("Offset", "Params.linearpattern3_pitch")
linearpattern3.Occurrences = 2
body.Tip = linearpattern3
doc.recompute()

datumline4 = body.newObject("PartDesign::Line", "DatumLine003")
datumline4.Placement = App.Placement(V(0, 0, 0), App.Rotation(V(0, 0, 1), V(0, 0.382154394, -0.92409849)))
linearpattern4 = body.newObject("PartDesign::LinearPattern", "LinearPattern003")
linearpattern4.Originals = [groove7]
linearpattern4.Direction = (datumline4, [""])
linearpattern4.Mode = "offset"
linearpattern4.setExpression("Offset", "Params.linearpattern4_pitch")
linearpattern4.Occurrences = 2
body.Tip = linearpattern4
doc.recompute()

polarpattern = body.newObject("PartDesign::PolarPattern", "PolarPattern")
polarpattern.Originals = [groove5]
polarpattern.Axis = (doc.getObject("X_Axis"), [""])
polarpattern.Angle = 360
polarpattern.Occurrences = 6
body.Tip = polarpattern
body2 = doc.addObject("PartDesign::Body", "Body001")

sketch13 = body2.newObject("Sketcher::SketchObject", "Sketch012")
sketch13.AttachmentSupport = (doc.getObject("XY_Plane001"), [""])
sketch13.MapMode = "FlatFace"
sketch13.AttachmentOffset = App.Placement(V(0, 0, 0.467 * 25.4), App.Rotation())
sketch13.addGeometry(Part.Circle(V(-28.1, -23.8, 0), V(0, 0, 1), 0.9), False)
sketch13.addGeometry(Part.LineSegment(V(-28.1, -28.6, 0), V(-18.1, -28.6, 0)), True)
sketch13.addConstraint([
    Sketcher.Constraint("Horizontal", 1),
    Sketcher.Constraint("Vertical", 0, 3, 1, 1),
    Sketcher.Constraint("Diameter", 0, Q("0.07 in")),
    Sketcher.Constraint("DistanceX", 0, 3, -1, 1, Q("1.107 in")),
    Sketcher.Constraint("DistanceY", 1, 1, -1, 1, Q("1.125 in")),
    Sketcher.Constraint("DistanceX", 1, 1, 1, 2, 10.0),
    Sketcher.Constraint("DistanceY", 0, 3, -1, 1, Q("0.9355 in")),
])
sketch13.setExpression("Constraints[2]", "Params.sketch13_diameter")
revolution2 = body2.newObject("PartDesign::Revolution", "Revolution001")
revolution2.Profile = sketch13
revolution2.ReferenceAxis = (sketch13, ["Axis0"])
revolution2.setExpression("Angle", "Params.revolution2_angle")
body3 = doc.addObject("PartDesign::Body", "Body002")
doc.recompute()

mirroring = doc.addObject("Part::Mirroring", "Mirroring")
mirroring.Source = body2
mirroring.Base = V(0, 0, 0)
mirroring.Normal = V(0, 0, 1)
body3.BaseFeature = mirroring
doc.recompute()
mirroring.Visibility = False

doc.recompute()
